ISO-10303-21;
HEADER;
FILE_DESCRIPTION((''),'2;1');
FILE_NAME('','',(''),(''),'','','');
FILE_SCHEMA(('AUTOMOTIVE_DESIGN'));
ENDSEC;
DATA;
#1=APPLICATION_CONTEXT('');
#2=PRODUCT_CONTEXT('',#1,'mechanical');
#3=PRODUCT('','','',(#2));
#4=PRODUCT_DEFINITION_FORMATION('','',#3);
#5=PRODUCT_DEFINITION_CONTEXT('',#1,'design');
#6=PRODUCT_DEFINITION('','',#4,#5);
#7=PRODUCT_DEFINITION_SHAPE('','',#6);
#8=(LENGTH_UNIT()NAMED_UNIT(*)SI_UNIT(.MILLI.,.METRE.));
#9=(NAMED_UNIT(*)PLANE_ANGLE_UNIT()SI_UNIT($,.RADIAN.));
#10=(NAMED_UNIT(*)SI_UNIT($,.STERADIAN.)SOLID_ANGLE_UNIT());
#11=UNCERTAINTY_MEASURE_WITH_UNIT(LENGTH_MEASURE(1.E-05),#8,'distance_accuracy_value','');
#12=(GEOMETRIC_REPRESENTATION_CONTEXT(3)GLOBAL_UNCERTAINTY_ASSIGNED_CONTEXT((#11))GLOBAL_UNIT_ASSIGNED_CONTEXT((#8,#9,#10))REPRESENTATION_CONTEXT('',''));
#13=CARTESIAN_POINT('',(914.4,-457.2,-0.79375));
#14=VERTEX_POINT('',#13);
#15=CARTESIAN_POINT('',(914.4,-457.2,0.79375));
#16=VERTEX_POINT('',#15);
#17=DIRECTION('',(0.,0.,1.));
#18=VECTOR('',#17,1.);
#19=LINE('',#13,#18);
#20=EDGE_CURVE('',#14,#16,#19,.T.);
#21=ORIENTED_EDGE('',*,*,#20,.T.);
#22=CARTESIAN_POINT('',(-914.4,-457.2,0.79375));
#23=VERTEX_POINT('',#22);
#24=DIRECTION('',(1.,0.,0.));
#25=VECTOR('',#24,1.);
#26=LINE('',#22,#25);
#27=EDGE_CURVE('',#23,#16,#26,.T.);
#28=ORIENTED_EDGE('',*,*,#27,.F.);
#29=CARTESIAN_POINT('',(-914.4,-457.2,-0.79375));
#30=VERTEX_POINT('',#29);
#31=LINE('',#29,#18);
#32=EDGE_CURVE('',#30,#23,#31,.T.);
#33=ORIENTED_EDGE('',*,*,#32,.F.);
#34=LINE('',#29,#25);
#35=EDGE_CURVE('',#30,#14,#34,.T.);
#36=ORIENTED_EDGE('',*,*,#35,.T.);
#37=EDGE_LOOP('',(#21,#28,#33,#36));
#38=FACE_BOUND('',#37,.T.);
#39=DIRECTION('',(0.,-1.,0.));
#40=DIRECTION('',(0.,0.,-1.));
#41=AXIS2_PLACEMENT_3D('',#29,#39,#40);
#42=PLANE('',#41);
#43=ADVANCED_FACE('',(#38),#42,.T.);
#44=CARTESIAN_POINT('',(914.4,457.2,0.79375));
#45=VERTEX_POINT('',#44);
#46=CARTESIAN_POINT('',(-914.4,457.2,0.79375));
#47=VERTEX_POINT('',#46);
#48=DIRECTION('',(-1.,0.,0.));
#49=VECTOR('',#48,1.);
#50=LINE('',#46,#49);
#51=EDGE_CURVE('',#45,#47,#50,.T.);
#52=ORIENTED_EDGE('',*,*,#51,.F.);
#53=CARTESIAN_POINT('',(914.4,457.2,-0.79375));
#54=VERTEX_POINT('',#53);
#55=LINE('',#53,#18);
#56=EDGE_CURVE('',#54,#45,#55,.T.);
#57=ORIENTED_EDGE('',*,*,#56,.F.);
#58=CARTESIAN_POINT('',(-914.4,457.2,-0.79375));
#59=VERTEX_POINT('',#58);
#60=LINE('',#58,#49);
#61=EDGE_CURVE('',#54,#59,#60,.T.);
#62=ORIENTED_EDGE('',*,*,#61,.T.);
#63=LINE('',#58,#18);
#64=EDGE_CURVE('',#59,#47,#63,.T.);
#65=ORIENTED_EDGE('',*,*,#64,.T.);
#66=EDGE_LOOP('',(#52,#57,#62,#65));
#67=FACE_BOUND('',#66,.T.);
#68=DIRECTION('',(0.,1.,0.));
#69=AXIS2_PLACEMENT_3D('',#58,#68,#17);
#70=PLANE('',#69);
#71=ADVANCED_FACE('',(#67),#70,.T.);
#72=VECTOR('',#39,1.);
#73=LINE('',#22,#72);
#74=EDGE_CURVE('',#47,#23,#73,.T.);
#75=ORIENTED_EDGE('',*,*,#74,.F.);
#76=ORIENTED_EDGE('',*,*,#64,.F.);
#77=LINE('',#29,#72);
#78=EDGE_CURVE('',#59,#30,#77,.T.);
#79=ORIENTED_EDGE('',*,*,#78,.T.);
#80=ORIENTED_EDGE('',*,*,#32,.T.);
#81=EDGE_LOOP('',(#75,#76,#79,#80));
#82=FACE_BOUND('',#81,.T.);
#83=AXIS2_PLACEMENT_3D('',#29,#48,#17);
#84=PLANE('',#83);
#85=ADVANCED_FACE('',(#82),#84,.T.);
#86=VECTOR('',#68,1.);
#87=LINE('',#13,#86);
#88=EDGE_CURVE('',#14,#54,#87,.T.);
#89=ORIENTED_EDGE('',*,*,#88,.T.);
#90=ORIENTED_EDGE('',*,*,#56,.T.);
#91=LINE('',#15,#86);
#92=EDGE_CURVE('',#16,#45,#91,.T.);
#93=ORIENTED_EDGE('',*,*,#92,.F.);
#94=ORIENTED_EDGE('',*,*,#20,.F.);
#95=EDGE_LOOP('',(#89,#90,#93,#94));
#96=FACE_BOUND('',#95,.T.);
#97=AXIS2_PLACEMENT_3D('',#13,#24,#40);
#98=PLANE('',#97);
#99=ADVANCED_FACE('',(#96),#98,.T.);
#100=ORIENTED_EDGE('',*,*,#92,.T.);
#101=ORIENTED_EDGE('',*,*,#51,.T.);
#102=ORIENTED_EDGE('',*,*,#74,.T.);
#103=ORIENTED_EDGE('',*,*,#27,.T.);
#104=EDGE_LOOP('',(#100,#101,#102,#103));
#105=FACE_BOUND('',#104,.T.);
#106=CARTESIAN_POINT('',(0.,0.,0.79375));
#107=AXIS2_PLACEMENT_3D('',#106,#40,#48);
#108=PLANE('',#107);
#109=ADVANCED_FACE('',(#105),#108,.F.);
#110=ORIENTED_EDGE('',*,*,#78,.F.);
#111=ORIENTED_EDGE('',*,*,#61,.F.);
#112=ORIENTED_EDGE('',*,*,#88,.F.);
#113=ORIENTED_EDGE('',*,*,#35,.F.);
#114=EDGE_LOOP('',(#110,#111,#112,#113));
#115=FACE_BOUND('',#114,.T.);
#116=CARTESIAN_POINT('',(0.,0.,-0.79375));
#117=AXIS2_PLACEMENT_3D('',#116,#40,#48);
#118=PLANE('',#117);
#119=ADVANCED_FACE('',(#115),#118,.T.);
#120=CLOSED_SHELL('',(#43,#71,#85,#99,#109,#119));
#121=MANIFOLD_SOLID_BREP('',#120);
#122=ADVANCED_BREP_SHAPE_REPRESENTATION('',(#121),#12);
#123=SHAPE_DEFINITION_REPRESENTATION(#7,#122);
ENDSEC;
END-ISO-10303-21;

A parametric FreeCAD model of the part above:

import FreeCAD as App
import Part
import Sketcher

V = App.Vector
Q = App.Units.Quantity

doc = App.newDocument("Part")
body = doc.addObject("PartDesign::Body", "Body")

# Sketch on XY plane
sketch1 = body.newObject("Sketcher::SketchObject", "Sketch")
sketch1.AttachmentSupport = (doc.getObject("XY_Plane"), [""])
sketch1.MapMode = "FlatFace"
sketch1.addGeometry(Part.LineSegment(V(-914.4, 457.2, 0), V(-914.4, -457.2, 0)), False)
sketch1.addGeometry(Part.LineSegment(V(-914.4, -457.2, 0), V(914.4, -457.2, 0)), False)
sketch1.addGeometry(Part.LineSegment(V(914.4, -457.2, 0), V(914.4, 457.2, 0)), False)
sketch1.addGeometry(Part.LineSegment(V(914.4, 457.2, 0), V(-914.4, 457.2, 0)), False)
sketch1.addConstraint(Sketcher.Constraint("Coincident", 0, 2, 1, 1))
sketch1.addConstraint(Sketcher.Constraint("Coincident", 1, 2, 2, 1))
sketch1.addConstraint(Sketcher.Constraint("Coincident", 2, 2, 3, 1))
sketch1.addConstraint(Sketcher.Constraint("Coincident", 3, 2, 0, 1))
sketch1.addConstraint(Sketcher.Constraint("Vertical", 0))
sketch1.addConstraint(Sketcher.Constraint("Horizontal", 1))
sketch1.addConstraint(Sketcher.Constraint("Vertical", 2))
sketch1.addConstraint(Sketcher.Constraint("Horizontal", 3))
sketch1.addConstraint(Sketcher.Constraint("Symmetric", 0, 2, 2, 2, -1, 1))
sketch1.addConstraint(Sketcher.Constraint("DistanceX", 1, 1, 1, 2, Q("72 in")))
sketch1.addConstraint(Sketcher.Constraint("DistanceY", 0, 2, 0, 1, Q("36 in")))
pad1 = body.newObject("PartDesign::Pad", "Pad")
pad1.Profile = sketch1
pad1.Type = "TwoLengths"
pad1.Length = Q("0.03125 in")
pad1.Length2 = Q("0.03125 in")

doc.recompute()
